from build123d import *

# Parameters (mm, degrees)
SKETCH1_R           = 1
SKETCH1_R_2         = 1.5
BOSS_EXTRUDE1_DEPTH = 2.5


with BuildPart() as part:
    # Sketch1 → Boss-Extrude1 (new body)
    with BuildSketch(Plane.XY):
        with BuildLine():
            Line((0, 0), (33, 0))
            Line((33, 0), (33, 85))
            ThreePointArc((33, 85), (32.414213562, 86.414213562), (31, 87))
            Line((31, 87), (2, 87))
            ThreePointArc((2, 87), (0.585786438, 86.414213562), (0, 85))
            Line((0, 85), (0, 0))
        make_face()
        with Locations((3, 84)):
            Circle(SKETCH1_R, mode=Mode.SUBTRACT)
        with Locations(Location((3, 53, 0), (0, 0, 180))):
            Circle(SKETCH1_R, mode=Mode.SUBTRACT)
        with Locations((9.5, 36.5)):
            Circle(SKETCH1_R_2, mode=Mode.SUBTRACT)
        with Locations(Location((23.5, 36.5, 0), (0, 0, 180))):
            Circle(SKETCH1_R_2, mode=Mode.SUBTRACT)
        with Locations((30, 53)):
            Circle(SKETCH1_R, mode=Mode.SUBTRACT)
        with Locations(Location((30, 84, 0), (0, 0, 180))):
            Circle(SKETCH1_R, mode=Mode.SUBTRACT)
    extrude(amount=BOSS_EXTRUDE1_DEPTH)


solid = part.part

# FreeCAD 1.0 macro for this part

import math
import FreeCAD as App
import Part
import Sketcher
Q = App.Units.Quantity

doc = App.newDocument("Part")
params = doc.addObject("Spreadsheet::Sheet", "Params")
for row, (alias, value) in enumerate([
    ("sketch1_diameter", "3 mm"),
    ("sketch1_diameter2", "2 mm"),
    ("sketch1_radius", "2 mm"),
    ("sketch1_width", "33 mm"),
    ("sketch1_height", "85 mm"),
    ("pad1_length", "2.5 mm"),
], start=1):
    params.set(f"A{row}", alias)
    params.set(f"B{row}", "=" + value)
    params.setAlias(f"B{row}", alias)

body = doc.addObject("PartDesign::Body", "Body")

sketch1 = body.newObject("Sketcher::SketchObject", "Sketch")
sketch1.AttachmentSupport = (doc.getObject("XY_Plane"), [""])
sketch1.MapMode = "FlatFace"
sketch1.addGeometry([
    Part.LineSegment(App.Vector(0, 0, 0), App.Vector(33, 0, 0)),
    Part.LineSegment(App.Vector(33, 0, 0), App.Vector(33, 85, 0)),
    Part.ArcOfCircle(Part.Circle(App.Vector(31, 85, 0), App.Vector(0, 0, 1), 2), math.radians(0), math.radians(90)),
    Part.LineSegment(App.Vector(31, 87, 0), App.Vector(2, 87, 0)),
    Part.ArcOfCircle(Part.Circle(App.Vector(2, 85, 0), App.Vector(0, 0, 1), 2), math.radians(90), math.radians(180)),
    Part.LineSegment(App.Vector(0, 85, 0), App.Vector(0, 0, 0)),
    Part.Circle(App.Vector(9.5, 36.5, 0), App.Vector(0, 0, 1), 1.5),
    Part.Circle(App.Vector(3, 53, 0), App.Vector(0, 0, 1), 1),
    Part.Circle(App.Vector(23.5, 36.5, 0), App.Vector(0, 0, 1), 1.5),
    Part.Circle(App.Vector(30, 53, 0), App.Vector(0, 0, 1), 1),
    Part.Circle(App.Vector(3, 84, 0), App.Vector(0, 0, 1), 1),
    Part.Circle(App.Vector(30, 84, 0), App.Vector(0, 0, 1), 1),
], False)
sketch1.addConstraint([
    Sketcher.Constraint("Coincident", 0, 2, 1, 1),
    Sketcher.Constraint("Tangent", 1, 2, 2, 1),
    Sketcher.Constraint("Tangent", 2, 2, 3, 1),
    Sketcher.Constraint("Tangent", 3, 2, 4, 1),
    Sketcher.Constraint("Tangent", 4, 2, 5, 1),
    Sketcher.Constraint("Coincident", 5, 2, 0, 1),
    Sketcher.Constraint("Horizontal", 0),
    Sketcher.Constraint("Vertical", 1),
    Sketcher.Constraint("Horizontal", 3),
    Sketcher.Constraint("Vertical", 5),
    Sketcher.Constraint("Coincident", 5, 2, -1, 1),
    Sketcher.Constraint("Equal", 2, 4),
    Sketcher.Constraint("Equal", 6, 8),
    Sketcher.Constraint("Equal", 7, 9),
    Sketcher.Constraint("Equal", 9, 10),
    Sketcher.Constraint("Equal", 10, 11),
    Sketcher.Constraint("Horizontal", 6, 3, 8, 3),
    Sketcher.Constraint("Horizontal", 7, 3, 9, 3),
    Sketcher.Constraint("Horizontal", 10, 3, 11, 3),
    Sketcher.Constraint("Vertical", 7, 3, 10, 3),
    Sketcher.Constraint("Vertical", 9, 3, 11, 3),
    Sketcher.Constraint("Diameter", 6, Q("3 mm")),
    Sketcher.Constraint("Diameter", 7, Q("2 mm")),
    Sketcher.Constraint("Radius", 2, Q("2 mm")),
    Sketcher.Constraint("DistanceX", 0, 1, 0, 2, Q("33 mm")),
    Sketcher.Constraint("DistanceY", 1, 1, 1, 2, Q("85 mm")),
    Sketcher.Constraint("DistanceX", -1, 1, 7, 3, Q("3 mm")),
    Sketcher.Constraint("DistanceY", -1, 1, 7, 3, Q("53 mm")),
    Sketcher.Constraint("DistanceX", -1, 1, 9, 3, Q("30 mm")),
    Sketcher.Constraint("DistanceY", -1, 1, 10, 3, Q("84 mm")),
    Sketcher.Constraint("DistanceX", 6, 3, 8, 3, Q("14 mm")),
    Sketcher.Constraint("DistanceX", -1, 1, 6, 3, Q("9.5 mm")),
    Sketcher.Constraint("DistanceY", -1, 1, 6, 3, Q("36.5 mm")),
])
sketch1.setExpression("Constraints[21]", "Params.sketch1_diameter")
sketch1.setExpression("Constraints[22]", "Params.sketch1_diameter2")
sketch1.setExpression("Constraints[23]", "Params.sketch1_radius")
sketch1.setExpression("Constraints[24]", "Params.sketch1_width")
sketch1.setExpression("Constraints[25]", "Params.sketch1_height")
pad1 = body.newObject("PartDesign::Pad", "Pad")
pad1.Profile = sketch1
pad1.setExpression("Length", "Params.pad1_length")

doc.recompute()
